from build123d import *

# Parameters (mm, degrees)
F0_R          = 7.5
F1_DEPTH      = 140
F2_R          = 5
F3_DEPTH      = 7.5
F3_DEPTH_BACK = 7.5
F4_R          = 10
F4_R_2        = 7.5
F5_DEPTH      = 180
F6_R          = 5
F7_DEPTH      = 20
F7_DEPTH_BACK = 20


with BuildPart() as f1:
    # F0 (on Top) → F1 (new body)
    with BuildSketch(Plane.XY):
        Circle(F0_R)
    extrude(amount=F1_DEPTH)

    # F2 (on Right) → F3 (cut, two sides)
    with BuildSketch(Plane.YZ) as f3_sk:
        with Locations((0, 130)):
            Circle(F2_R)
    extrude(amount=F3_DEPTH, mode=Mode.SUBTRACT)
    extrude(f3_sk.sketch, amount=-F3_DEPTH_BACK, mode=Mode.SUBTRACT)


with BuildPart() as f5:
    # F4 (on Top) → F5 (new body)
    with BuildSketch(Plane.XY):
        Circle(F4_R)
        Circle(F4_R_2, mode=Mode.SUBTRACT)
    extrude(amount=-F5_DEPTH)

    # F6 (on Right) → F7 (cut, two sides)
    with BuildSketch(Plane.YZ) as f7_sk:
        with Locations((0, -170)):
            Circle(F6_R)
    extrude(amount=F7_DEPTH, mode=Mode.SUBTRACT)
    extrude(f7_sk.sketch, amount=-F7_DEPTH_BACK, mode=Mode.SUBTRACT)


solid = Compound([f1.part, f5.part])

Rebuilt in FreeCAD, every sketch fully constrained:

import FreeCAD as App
import Part
import Sketcher

doc = App.newDocument("Part")
body = doc.addObject("PartDesign::Body", "Body")

sketch1 = body.newObject("Sketcher::SketchObject", "Sketch")
sketch1.AttachmentSupport = (doc.getObject("XY_Plane"), [""])
sketch1.MapMode = "FlatFace"
sketch1.addGeometry(Part.Circle(App.Vector(0, 0, 0), App.Vector(0, 0, 1), 8), False)
sketch1.addConstraint(Sketcher.Constraint("Coincident", 0, 3, -1, 1))
sketch1.addConstraint(Sketcher.Constraint("Diameter", 0, 15.0))
pad1 = body.newObject("PartDesign::Pad", "Pad")
pad1.Profile = sketch1
pad1.Length = 140

sketch2 = body.newObject("Sketcher::SketchObject", "Sketch001")
sketch2.AttachmentSupport = (doc.getObject("YZ_Plane"), [""])
sketch2.MapMode = "FlatFace"
sketch2.addGeometry(Part.Circle(App.Vector(0, 130, 0), App.Vector(0, 0, 1), 5), False)
sketch2.addConstraint(Sketcher.Constraint("PointOnObject", 0, 3, -2))
sketch2.addConstraint(Sketcher.Constraint("Diameter", 0, 10.0))
sketch2.addConstraint(Sketcher.Constraint("DistanceY", -1, 1, 0, 3, 130.0))
pocket1 = body.newObject("PartDesign::Pocket", "Pocket")
pocket1.Profile = sketch2
pocket1.Type = "ThroughAll"
pocket1.Midplane = True
body2 = doc.addObject("PartDesign::Body", "Body001")

sketch3 = body2.newObject("Sketcher::SketchObject", "Sketch002")
sketch3.AttachmentSupport = (doc.getObject("XY_Plane001"), [""])
sketch3.MapMode = "FlatFace"
sketch3.addGeometry(Part.Circle(App.Vector(0, 0, 0), App.Vector(0, 0, 1), 10), False)
sketch3.addGeometry(Part.Circle(App.Vector(0, 0, 0), App.Vector(0, 0, 1), 8), False)
sketch3.addConstraint(Sketcher.Constraint("Coincident", 0, 3, -1, 1))
sketch3.addConstraint(Sketcher.Constraint("Coincident", 1, 3, -1, 1))
sketch3.addConstraint(Sketcher.Constraint("Diameter", 0, 20.0))
sketch3.addConstraint(Sketcher.Constraint("Diameter", 1, 15.0))
pad2 = body2.newObject("PartDesign::Pad", "Pad001")
pad2.Profile = sketch3
pad2.Length = 180
pad2.Reversed = True

sketch4 = body2.newObject("Sketcher::SketchObject", "Sketch003")
sketch4.AttachmentSupport = (doc.getObject("YZ_Plane001"), [""])
sketch4.MapMode = "FlatFace"
sketch4.addGeometry(Part.Circle(App.Vector(0, -170, 0), App.Vector(0, 0, 1), 5), False)
sketch4.addConstraint(Sketcher.Constraint("PointOnObject", 0, 3, -2))
sketch4.addConstraint(Sketcher.Constraint("Diameter", 0, 10.0))
sketch4.addConstraint(Sketcher.Constraint("DistanceY", 0, 3, -1, 1, 170.0))
pocket2 = body2.newObject("PartDesign::Pocket", "Pocket001")
pocket2.Profile = sketch4
pocket2.Type = "ThroughAll"
pocket2.Midplane = True

doc.recompute()
